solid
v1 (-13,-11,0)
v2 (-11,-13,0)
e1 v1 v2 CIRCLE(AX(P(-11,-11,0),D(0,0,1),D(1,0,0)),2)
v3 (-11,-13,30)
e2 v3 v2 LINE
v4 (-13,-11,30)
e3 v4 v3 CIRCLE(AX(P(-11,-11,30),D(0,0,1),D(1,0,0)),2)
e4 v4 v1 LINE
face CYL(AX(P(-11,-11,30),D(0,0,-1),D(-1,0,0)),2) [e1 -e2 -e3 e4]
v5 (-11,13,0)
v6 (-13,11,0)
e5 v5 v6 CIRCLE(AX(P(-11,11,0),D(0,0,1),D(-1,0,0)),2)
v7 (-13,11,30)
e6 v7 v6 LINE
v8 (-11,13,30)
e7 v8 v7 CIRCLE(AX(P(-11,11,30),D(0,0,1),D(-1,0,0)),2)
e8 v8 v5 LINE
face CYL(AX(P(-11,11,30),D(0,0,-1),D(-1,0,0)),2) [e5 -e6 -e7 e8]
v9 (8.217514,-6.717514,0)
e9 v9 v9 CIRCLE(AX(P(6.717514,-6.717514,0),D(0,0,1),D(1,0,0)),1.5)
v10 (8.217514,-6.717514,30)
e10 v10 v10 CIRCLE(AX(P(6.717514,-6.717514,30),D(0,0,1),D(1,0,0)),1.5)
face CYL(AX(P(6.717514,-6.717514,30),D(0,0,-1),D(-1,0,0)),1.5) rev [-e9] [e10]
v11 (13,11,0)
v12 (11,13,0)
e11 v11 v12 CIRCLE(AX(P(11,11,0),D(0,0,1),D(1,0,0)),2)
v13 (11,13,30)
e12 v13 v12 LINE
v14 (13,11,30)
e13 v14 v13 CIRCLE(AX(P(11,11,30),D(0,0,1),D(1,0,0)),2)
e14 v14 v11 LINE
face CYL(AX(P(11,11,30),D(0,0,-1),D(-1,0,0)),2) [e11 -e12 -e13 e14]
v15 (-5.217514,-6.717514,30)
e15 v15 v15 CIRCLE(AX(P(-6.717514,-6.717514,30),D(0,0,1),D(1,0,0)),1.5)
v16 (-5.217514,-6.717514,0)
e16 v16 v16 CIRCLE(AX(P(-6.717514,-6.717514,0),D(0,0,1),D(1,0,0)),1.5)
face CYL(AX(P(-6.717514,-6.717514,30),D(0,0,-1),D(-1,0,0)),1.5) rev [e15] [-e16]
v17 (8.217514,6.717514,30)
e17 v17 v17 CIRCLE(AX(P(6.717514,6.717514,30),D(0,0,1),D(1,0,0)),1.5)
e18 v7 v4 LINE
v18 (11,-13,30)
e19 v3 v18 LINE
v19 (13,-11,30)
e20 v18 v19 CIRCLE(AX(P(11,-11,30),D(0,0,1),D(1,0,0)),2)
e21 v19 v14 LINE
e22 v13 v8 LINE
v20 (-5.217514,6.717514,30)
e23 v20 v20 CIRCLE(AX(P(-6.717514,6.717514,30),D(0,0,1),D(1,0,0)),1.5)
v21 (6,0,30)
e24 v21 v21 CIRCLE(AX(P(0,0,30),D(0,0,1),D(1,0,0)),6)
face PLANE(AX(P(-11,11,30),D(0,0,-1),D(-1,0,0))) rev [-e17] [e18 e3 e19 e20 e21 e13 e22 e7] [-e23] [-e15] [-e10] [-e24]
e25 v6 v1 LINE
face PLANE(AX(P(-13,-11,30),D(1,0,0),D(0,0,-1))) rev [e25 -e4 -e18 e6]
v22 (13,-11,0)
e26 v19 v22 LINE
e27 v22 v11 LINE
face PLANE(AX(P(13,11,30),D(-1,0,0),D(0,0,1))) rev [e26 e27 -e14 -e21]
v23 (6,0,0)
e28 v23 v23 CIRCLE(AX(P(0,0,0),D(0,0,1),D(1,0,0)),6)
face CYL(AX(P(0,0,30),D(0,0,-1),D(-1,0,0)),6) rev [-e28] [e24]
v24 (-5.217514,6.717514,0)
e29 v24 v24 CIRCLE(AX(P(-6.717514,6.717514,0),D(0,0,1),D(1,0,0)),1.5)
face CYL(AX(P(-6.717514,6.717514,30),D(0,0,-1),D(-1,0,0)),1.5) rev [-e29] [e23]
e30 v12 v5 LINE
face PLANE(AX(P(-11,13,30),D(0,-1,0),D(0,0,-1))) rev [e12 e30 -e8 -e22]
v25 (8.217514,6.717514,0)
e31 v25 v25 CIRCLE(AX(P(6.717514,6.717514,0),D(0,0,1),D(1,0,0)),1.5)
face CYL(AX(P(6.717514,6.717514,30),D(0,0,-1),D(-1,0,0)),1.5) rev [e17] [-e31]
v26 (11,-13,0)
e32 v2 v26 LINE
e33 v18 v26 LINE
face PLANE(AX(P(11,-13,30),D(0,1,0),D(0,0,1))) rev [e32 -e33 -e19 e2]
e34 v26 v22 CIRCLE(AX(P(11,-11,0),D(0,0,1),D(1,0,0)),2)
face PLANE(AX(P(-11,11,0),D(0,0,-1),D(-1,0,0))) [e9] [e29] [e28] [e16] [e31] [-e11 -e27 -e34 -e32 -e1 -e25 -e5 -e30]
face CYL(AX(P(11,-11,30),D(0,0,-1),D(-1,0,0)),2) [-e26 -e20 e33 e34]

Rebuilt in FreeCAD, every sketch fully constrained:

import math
import FreeCAD as App
import Part
import Sketcher
Q = App.Units.Quantity

doc = App.newDocument("Part")
params = doc.addObject("Spreadsheet::Sheet", "Params")
for row, (alias, value) in enumerate([
    ("sketch1_diameter", "3 mm"),
    ("sketch1_diameter2", "12 mm"),
    ("sketch1_radius", "2 mm"),
    ("sketch1_width", "22 mm"),
    ("pad1_length", "30 mm"),
], start=1):
    params.set(f"A{row}", alias)
    params.set(f"B{row}", "=" + value)
    params.setAlias(f"B{row}", alias)

body = doc.addObject("PartDesign::Body", "Body")

sketch1 = body.newObject("Sketcher::SketchObject", "Sketch")
sketch1.AttachmentSupport = (doc.getObject("XY_Plane"), [""])
sketch1.MapMode = "FlatFace"
sketch1.addGeometry([
    Part.ArcOfCircle(Part.Circle(App.Vector(11, 11, 0), App.Vector(0, 0, 1), 2), math.radians(0), math.radians(90)),
    Part.LineSegment(App.Vector(11, 13, 0), App.Vector(-11, 13, 0)),
    Part.ArcOfCircle(Part.Circle(App.Vector(-11, 11, 0), App.Vector(0, 0, 1), 2), math.radians(90), math.radians(180)),
    Part.LineSegment(App.Vector(-13, 11, 0), App.Vector(-13, -11, 0)),
    Part.ArcOfCircle(Part.Circle(App.Vector(-11, -11, 0), App.Vector(0, 0, 1), 2), math.radians(-180), math.radians(-90)),
    Part.LineSegment(App.Vector(-11, -13, 0), App.Vector(11, -13, 0)),
    Part.ArcOfCircle(Part.Circle(App.Vector(11, -11, 0), App.Vector(0, 0, 1), 2), math.radians(-90), math.radians(0)),
    Part.LineSegment(App.Vector(13, -11, 0), App.Vector(13, 11, 0)),
    Part.Circle(App.Vector(6.7, -6.7, 0), App.Vector(0, 0, 1), 1.5),
    Part.Circle(App.Vector(-6.7, -6.7, 0), App.Vector(0, 0, 1), 1.5),
    Part.Circle(App.Vector(6.7, 6.7, 0), App.Vector(0, 0, 1), 1.5),
    Part.Circle(App.Vector(0, 0, 0), App.Vector(0, 0, 1), 6),
    Part.Circle(App.Vector(-6.7, 6.7, 0), App.Vector(0, 0, 1), 1.5),
], False)
sketch1.addConstraint([
    Sketcher.Constraint("Tangent", 0, 2, 1, 1),
    Sketcher.Constraint("Tangent", 1, 2, 2, 1),
    Sketcher.Constraint("Tangent", 2, 2, 3, 1),
    Sketcher.Constraint("Tangent", 3, 2, 4, 1),
    Sketcher.Constraint("Tangent", 4, 2, 5, 1),
    Sketcher.Constraint("Tangent", 5, 2, 6, 1),
    Sketcher.Constraint("Tangent", 6, 2, 7, 1),
    Sketcher.Constraint("Tangent", 7, 2, 0, 1),
    Sketcher.Constraint("Horizontal", 1),
    Sketcher.Constraint("Vertical", 3),
    Sketcher.Constraint("Horizontal", 5),
    Sketcher.Constraint("Vertical", 7),
    Sketcher.Constraint("Coincident", 11, 3, -1, 1),
    Sketcher.Constraint("Equal", 0, 2),
    Sketcher.Constraint("Equal", 2, 4),
    Sketcher.Constraint("Equal", 4, 6),
    Sketcher.Constraint("Equal", 8, 9),
    Sketcher.Constraint("Equal", 9, 10),
    Sketcher.Constraint("Equal", 10, 12),
    Sketcher.Constraint("Symmetric", 0, 3, 4, 3, -1, 1),
    Sketcher.Constraint("Symmetric", 9, 3, 10, 3, -1, 1),
    Sketcher.Constraint("Symmetric", 8, 3, 12, 3, -1, 1),
    Sketcher.Constraint("Symmetric", 8, 3, 9, 3, -2),
    Sketcher.Constraint("Equal", 5, 3),
    Sketcher.Constraint("Diameter", 8, Q("3 mm")),
    Sketcher.Constraint("Diameter", 11, Q("12 mm")),
    Sketcher.Constraint("Radius", 0, Q("2 mm")),
    Sketcher.Constraint("DistanceX", 1, 2, 1, 1, Q("22 mm")),
    Sketcher.Constraint("DistanceX", 9, 3, 8, 3, Q("13.435029 mm")),
    Sketcher.Constraint("DistanceY", 8, 3, 10, 3, Q("13.435029 mm")),
])
sketch1.setExpression("Constraints[24]", "Params.sketch1_diameter")
sketch1.setExpression("Constraints[25]", "Params.sketch1_diameter2")
sketch1.setExpression("Constraints[26]", "Params.sketch1_radius")
sketch1.setExpression("Constraints[27]", "Params.sketch1_width")
pad1 = body.newObject("PartDesign::Pad", "Pad")
pad1.Profile = sketch1
pad1.setExpression("Length", "Params.pad1_length")

doc.recompute()
